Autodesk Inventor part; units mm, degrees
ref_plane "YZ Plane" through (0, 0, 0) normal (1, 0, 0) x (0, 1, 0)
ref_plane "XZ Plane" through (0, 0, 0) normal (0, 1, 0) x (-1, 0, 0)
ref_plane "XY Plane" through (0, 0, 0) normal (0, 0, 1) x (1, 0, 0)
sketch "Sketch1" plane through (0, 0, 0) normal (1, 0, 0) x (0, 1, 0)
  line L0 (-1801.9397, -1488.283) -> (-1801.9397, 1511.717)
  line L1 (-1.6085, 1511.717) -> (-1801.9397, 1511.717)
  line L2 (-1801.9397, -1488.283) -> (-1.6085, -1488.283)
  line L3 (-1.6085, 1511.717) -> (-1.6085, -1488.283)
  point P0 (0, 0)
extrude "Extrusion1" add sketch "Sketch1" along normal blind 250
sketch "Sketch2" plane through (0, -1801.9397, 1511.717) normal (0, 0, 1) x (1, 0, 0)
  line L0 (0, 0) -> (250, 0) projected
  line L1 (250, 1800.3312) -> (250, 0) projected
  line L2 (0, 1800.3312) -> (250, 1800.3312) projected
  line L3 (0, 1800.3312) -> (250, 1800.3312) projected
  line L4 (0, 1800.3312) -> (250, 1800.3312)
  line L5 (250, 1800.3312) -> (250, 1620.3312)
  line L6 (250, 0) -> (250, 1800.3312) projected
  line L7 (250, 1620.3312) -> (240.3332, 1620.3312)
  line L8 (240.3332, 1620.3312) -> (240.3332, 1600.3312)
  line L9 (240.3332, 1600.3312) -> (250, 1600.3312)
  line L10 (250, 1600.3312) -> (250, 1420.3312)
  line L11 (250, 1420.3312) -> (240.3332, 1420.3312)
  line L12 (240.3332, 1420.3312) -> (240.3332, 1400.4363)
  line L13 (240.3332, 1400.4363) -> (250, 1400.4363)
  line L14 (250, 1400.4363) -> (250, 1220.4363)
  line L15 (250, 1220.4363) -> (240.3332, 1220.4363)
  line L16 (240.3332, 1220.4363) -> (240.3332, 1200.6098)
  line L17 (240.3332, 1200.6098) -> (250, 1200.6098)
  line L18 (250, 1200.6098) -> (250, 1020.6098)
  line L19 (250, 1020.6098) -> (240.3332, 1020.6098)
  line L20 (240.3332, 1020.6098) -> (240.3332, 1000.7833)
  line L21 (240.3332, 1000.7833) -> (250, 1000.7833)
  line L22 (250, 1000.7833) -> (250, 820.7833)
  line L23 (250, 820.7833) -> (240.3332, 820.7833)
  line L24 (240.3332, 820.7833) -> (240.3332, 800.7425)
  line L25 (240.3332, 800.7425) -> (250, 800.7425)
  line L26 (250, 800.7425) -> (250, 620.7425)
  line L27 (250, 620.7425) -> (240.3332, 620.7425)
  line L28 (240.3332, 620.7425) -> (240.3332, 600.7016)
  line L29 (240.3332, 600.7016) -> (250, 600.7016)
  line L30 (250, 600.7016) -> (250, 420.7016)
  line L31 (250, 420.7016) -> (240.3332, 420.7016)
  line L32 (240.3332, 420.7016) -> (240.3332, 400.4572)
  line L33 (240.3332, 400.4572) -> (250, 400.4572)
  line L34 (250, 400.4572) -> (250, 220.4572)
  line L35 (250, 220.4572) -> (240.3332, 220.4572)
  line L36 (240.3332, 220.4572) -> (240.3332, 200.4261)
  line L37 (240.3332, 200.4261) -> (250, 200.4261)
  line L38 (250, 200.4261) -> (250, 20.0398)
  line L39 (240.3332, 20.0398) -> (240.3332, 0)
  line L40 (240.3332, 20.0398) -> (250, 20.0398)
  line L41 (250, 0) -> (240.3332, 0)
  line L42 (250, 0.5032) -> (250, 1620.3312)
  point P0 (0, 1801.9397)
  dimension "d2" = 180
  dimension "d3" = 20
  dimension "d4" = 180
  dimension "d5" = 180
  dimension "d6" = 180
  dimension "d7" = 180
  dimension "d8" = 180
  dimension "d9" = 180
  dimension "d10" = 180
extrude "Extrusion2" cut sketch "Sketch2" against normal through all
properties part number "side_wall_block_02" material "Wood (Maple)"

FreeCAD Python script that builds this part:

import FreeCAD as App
import Part
import Sketcher

V = App.Vector
Q = App.Units.Quantity


def add_polygon(sketch, points):
    """Adds a closed chain of lines whose ends are joined by coincident constraints."""
    first, n = sketch.GeometryCount, len(points)
    for a, b in zip(points, points[1:] + points[:1]):
        sketch.addGeometry(Part.LineSegment(App.Vector(*a, 0), App.Vector(*b, 0)), False)
    for i in range(n):
        sketch.addConstraint(Sketcher.Constraint("Coincident", first + i, 2, first + (i + 1) % n, 1))

doc = App.newDocument("Part")
body = doc.addObject("PartDesign::Body", "Body")

sketch1 = doc.addObject("Sketcher::SketchObject", "Sketch")
body.addObject(sketch1)
sketch1.AttachmentSupport = (doc.YZ_Plane, [""])
sketch1.MapMode = "FlatFace"
add_polygon(sketch1, [(-1802, 1512), (-1802, -1488), (-2, -1488), (-2, 1512)])
sketch1.addConstraint([
    Sketcher.Constraint("Vertical", 0),
    Sketcher.Constraint("Horizontal", 1),
    Sketcher.Constraint("Vertical", 2),
    Sketcher.Constraint("Horizontal", 3),
    Sketcher.Constraint("DistanceY", 0, 2, 0, 1, Q("3000 mm")),
    Sketcher.Constraint("DistanceX", 1, 1, 1, 2, Q("1800.3312 mm")),
    Sketcher.Constraint("DistanceY", 0, 2, -1, 1, Q("1488.283 mm")),
    Sketcher.Constraint("DistanceX", 0, 2, -1, 1, Q("1801.9397 mm")),
])
pad1 = doc.addObject("PartDesign::Pad", "Pad")
body.addObject(pad1)
pad1.Profile = sketch1
pad1.Length = 250

sketch2 = doc.addObject("Sketcher::SketchObject", "Sketch001")
body.addObject(sketch2)
sketch2.AttachmentSupport = (doc.XY_Plane, [""])
sketch2.MapMode = "FlatFace"
sketch2.AttachmentOffset = App.Placement(V(0, 0, 1511.717), App.Rotation())
add_polygon(sketch2, [(240, -1782), (240, -1802), (250, -1802), (250, -1782)])
add_polygon(sketch2, [(240, -202), (250, -202), (250, -182), (240, -182)])
add_polygon(sketch2, [(240, -402), (250, -402), (250, -382), (240, -382)])
add_polygon(sketch2, [(240, -601), (250, -601), (250, -582), (240, -582)])
add_polygon(sketch2, [(240, -801), (250, -801), (250, -781), (240, -781)])
add_polygon(sketch2, [(240, -1001), (250, -1001), (250, -981), (240, -981)])
add_polygon(sketch2, [(240, -1201), (250, -1201), (250, -1181), (240, -1181)])
add_polygon(sketch2, [(240, -1401), (250, -1401), (250, -1381), (240, -1381)])
add_polygon(sketch2, [(240, -1602), (250, -1602), (250, -1581), (240, -1581)])
sketch2.addConstraint([
    Sketcher.Constraint("Vertical", 0),
    Sketcher.Constraint("Horizontal", 1),
    Sketcher.Constraint("Vertical", 2),
    Sketcher.Constraint("Horizontal", 3),
    Sketcher.Constraint("Horizontal", 4),
    Sketcher.Constraint("Vertical", 5),
    Sketcher.Constraint("Horizontal", 6),
    Sketcher.Constraint("Vertical", 7),
    Sketcher.Constraint("Horizontal", 8),
    Sketcher.Constraint("Vertical", 9),
    Sketcher.Constraint("Horizontal", 10),
    Sketcher.Constraint("Vertical", 11),
    Sketcher.Constraint("Horizontal", 12),
    Sketcher.Constraint("Vertical", 13),
    Sketcher.Constraint("Horizontal", 14),
    Sketcher.Constraint("Vertical", 15),
    Sketcher.Constraint("Horizontal", 16),
    Sketcher.Constraint("Vertical", 17),
    Sketcher.Constraint("Horizontal", 18),
    Sketcher.Constraint("Vertical", 19),
    Sketcher.Constraint("Horizontal", 20),
    Sketcher.Constraint("Vertical", 21),
    Sketcher.Constraint("Horizontal", 22),
    Sketcher.Constraint("Vertical", 23),
    Sketcher.Constraint("Horizontal", 24),
    Sketcher.Constraint("Vertical", 25),
    Sketcher.Constraint("Horizontal", 26),
    Sketcher.Constraint("Vertical", 27),
    Sketcher.Constraint("Horizontal", 28),
    Sketcher.Constraint("Vertical", 29),
    Sketcher.Constraint("Horizontal", 30),
    Sketcher.Constraint("Vertical", 31),
    Sketcher.Constraint("Horizontal", 32),
    Sketcher.Constraint("Vertical", 33),
    Sketcher.Constraint("Horizontal", 34),
    Sketcher.Constraint("Vertical", 35),
    Sketcher.Constraint("Vertical", 2, 2, 4, 2),
    Sketcher.Constraint("Vertical", 3, 2, 6, 2),
    Sketcher.Constraint("Vertical", 5, 2, 8, 2),
    Sketcher.Constraint("Vertical", 7, 2, 10, 2),
    Sketcher.Constraint("Vertical", 9, 2, 12, 2),
    Sketcher.Constraint("Vertical", 11, 2, 14, 2),
    Sketcher.Constraint("Vertical", 13, 2, 16, 2),
    Sketcher.Constraint("Vertical", 15, 2, 18, 2),
    Sketcher.Constraint("Vertical", 17, 2, 20, 2),
    Sketcher.Constraint("Vertical", 19, 2, 22, 2),
    Sketcher.Constraint("Vertical", 21, 2, 24, 2),
    Sketcher.Constraint("Vertical", 23, 2, 26, 2),
    Sketcher.Constraint("Vertical", 25, 2, 28, 2),
    Sketcher.Constraint("Vertical", 27, 2, 30, 2),
    Sketcher.Constraint("Vertical", 29, 2, 32, 2),
    Sketcher.Constraint("Vertical", 31, 2, 34, 2),
    Sketcher.Constraint("Equal", 15, 17),
    Sketcher.Constraint("Equal", 23, 25),
    Sketcher.Constraint("DistanceY", 5, 1, 5, 2, Q("20 mm")),
    Sketcher.Constraint("DistanceY", 9, 2, 4, 2, Q("180 mm")),
    Sketcher.Constraint("DistanceY", 13, 2, 8, 2, Q("180 mm")),
    Sketcher.Constraint("DistanceY", 17, 2, 12, 2, Q("180 mm")),
    Sketcher.Constraint("DistanceY", 21, 2, 16, 2, Q("180 mm")),
    Sketcher.Constraint("DistanceY", 25, 2, 20, 2, Q("180 mm")),
    Sketcher.Constraint("DistanceY", 29, 2, 24, 2, Q("180 mm")),
    Sketcher.Constraint("DistanceY", 33, 2, 28, 2, Q("180 mm")),
    Sketcher.Constraint("DistanceX", -1, 1, 1, 2, Q("250 mm")),
    Sketcher.Constraint("DistanceY", 2, 2, -1, 1, Q("1781.9 mm")),
    Sketcher.Constraint("DistanceY", 9, 1, 9, 2, Q("19.895 mm")),
    Sketcher.Constraint("DistanceY", 25, 1, 25, 2, Q("20.041 mm")),
    Sketcher.Constraint("DistanceY", 33, 1, 33, 2, Q("20.031 mm")),
    Sketcher.Constraint("DistanceY", 12, 2, -1, 1, Q("601.33 mm")),
    Sketcher.Constraint("DistanceX", 1, 1, 1, 2, Q("9.6668 mm")),
    Sketcher.Constraint("DistanceY", 0, 2, 0, 1, Q("20.0398 mm")),
    Sketcher.Constraint("DistanceY", 13, 1, 13, 2, Q("19.8265 mm")),
    Sketcher.Constraint("DistanceY", 29, 1, 29, 2, Q("20.2444 mm")),
])
pocket1 = doc.addObject("PartDesign::Pocket", "Pocket")
body.addObject(pocket1)
pocket1.Profile = sketch2
pocket1.Type = "ThroughAll"

doc.recompute()
